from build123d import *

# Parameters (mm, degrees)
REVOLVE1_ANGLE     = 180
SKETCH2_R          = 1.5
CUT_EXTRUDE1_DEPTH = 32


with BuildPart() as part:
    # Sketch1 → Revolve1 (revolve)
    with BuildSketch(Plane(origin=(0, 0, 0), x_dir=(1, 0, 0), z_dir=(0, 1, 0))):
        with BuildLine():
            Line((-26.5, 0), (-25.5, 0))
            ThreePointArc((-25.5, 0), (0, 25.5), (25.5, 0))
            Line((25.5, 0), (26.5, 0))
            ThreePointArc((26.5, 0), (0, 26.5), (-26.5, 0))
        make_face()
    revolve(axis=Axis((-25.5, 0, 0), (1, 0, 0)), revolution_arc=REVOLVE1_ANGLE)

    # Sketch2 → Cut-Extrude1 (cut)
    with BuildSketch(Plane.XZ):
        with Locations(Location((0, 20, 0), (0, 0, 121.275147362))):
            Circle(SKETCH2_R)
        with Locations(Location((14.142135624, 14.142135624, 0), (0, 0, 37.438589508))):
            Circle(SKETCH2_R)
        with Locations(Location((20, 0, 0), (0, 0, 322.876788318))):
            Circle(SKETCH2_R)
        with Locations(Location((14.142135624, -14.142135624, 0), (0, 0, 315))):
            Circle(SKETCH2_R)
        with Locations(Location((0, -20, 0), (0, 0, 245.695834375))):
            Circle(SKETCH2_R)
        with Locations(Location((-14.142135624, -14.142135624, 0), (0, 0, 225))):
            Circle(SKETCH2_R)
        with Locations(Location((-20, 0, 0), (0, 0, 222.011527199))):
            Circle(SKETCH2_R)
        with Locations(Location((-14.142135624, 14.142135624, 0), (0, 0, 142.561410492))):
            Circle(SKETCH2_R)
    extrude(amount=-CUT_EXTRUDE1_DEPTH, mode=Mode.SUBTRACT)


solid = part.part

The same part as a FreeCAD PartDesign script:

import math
import FreeCAD as App
import Part
import Sketcher
Q = App.Units.Quantity

doc = App.newDocument("Part")
body = doc.addObject("PartDesign::Body", "Body")

sketch1 = body.newObject("Sketcher::SketchObject", "Sketch")
sketch1.AttachmentSupport = (doc.getObject("XZ_Plane"), [""])
sketch1.MapMode = "FlatFace"
sketch1.addGeometry(Part.LineSegment(App.Vector(-26.5, 0, 0), App.Vector(-25.5, 0, 0)), False)
sketch1.addGeometry(Part.ArcOfCircle(Part.Circle(App.Vector(0, 0, 0), App.Vector(0, 0, 1), 25.5), math.radians(180), math.radians(360)), False)
sketch1.addGeometry(Part.LineSegment(App.Vector(25.5, 0, 0), App.Vector(26.5, 0, 0)), False)
sketch1.addGeometry(Part.ArcOfCircle(Part.Circle(App.Vector(0, 0, 0), App.Vector(0, 0, 1), 26.5), math.radians(180), math.radians(360)), False)
sketch1.addConstraint(Sketcher.Constraint("Coincident", 0, 2, 1, 1))
sketch1.addConstraint(Sketcher.Constraint("Coincident", 1, 2, 2, 1))
sketch1.addConstraint(Sketcher.Constraint("Coincident", 2, 2, 3, 2))
sketch1.addConstraint(Sketcher.Constraint("Coincident", 3, 1, 0, 1))
sketch1.addConstraint(Sketcher.Constraint("Horizontal", 0))
sketch1.addConstraint(Sketcher.Constraint("Horizontal", 2))
sketch1.addConstraint(Sketcher.Constraint("Coincident", 1, 3, -1, 1))
sketch1.addConstraint(Sketcher.Constraint("Coincident", 3, 3, -1, 1))
sketch1.addConstraint(Sketcher.Constraint("PointOnObject", 0, 2, -1))
sketch1.addConstraint(Sketcher.Constraint("PointOnObject", 1, 2, -1))
sketch1.addConstraint(Sketcher.Constraint("Radius", 1, Q("25.5 mm")))
sketch1.addConstraint(Sketcher.Constraint("Radius", 3, Q("26.5 mm")))
revolution = body.newObject("PartDesign::Revolution", "Revolution")
revolution.Profile = sketch1
revolution.ReferenceAxis = (sketch1, ["H_Axis"])
revolution.Angle = 180

sketch2 = body.newObject("Sketcher::SketchObject", "Sketch001")
sketch2.AttachmentSupport = (doc.getObject("XZ_Plane"), [""])
sketch2.MapMode = "FlatFace"
sketch2.addGeometry(Part.Circle(App.Vector(0, 20, 0), App.Vector(0, 0, 1), 1.5), False)
sketch2.addGeometry(Part.Circle(App.Vector(14.142136, 14.142136, 0), App.Vector(0, 0, 1), 1.5), False)
sketch2.addGeometry(Part.Circle(App.Vector(20, 0, 0), App.Vector(0, 0, 1), 1.5), False)
sketch2.addGeometry(Part.Circle(App.Vector(14.142136, -14.142136, 0), App.Vector(0, 0, 1), 1.5), False)
sketch2.addGeometry(Part.Circle(App.Vector(0, -20, 0), App.Vector(0, 0, 1), 1.5), False)
sketch2.addGeometry(Part.Circle(App.Vector(-14.142136, -14.142136, 0), App.Vector(0, 0, 1), 1.5), False)
sketch2.addGeometry(Part.Circle(App.Vector(-20, 0, 0), App.Vector(0, 0, 1), 1.5), False)
sketch2.addGeometry(Part.Circle(App.Vector(-14.142136, 14.142136, 0), App.Vector(0, 0, 1), 1.5), False)
sketch2.addConstraint(Sketcher.Constraint("Equal", 0, 1))
sketch2.addConstraint(Sketcher.Constraint("Equal", 1, 2))
sketch2.addConstraint(Sketcher.Constraint("Equal", 2, 3))
sketch2.addConstraint(Sketcher.Constraint("Equal", 3, 4))
sketch2.addConstraint(Sketcher.Constraint("Equal", 4, 5))
sketch2.addConstraint(Sketcher.Constraint("Equal", 5, 6))
sketch2.addConstraint(Sketcher.Constraint("Equal", 6, 7))
sketch2.addConstraint(Sketcher.Constraint("Symmetric", 0, 3, 4, 3, -1, 1))
sketch2.addConstraint(Sketcher.Constraint("Symmetric", 1, 3, 5, 3, -1, 1))
sketch2.addConstraint(Sketcher.Constraint("Symmetric", 2, 3, 6, 3, -1, 1))
sketch2.addConstraint(Sketcher.Constraint("Symmetric", 3, 3, 7, 3, -1, 1))
sketch2.addConstraint(Sketcher.Constraint("Symmetric", 3, 3, 5, 3, -2))
sketch2.addConstraint(Sketcher.Constraint("PointOnObject", 0, 3, -2))
sketch2.addConstraint(Sketcher.Constraint("PointOnObject", 2, 3, -1))
sketch2.addConstraint(Sketcher.Constraint("Diameter", 0, Q("3 mm")))
sketch2.addConstraint(Sketcher.Constraint("DistanceY", -1, 1, 0, 3, Q("20 mm")))
sketch2.addConstraint(Sketcher.Constraint("DistanceX", -1, 1, 2, 3, Q("20 mm")))
sketch2.addConstraint(Sketcher.Constraint("DistanceY", 3, 3, 1, 3, Q("28.284271 mm")))
sketch2.addConstraint(Sketcher.Constraint("DistanceX", 5, 3, 3, 3, Q("28.284271 mm")))
pocket1 = body.newObject("PartDesign::Pocket", "Pocket")
pocket1.Profile = sketch2
pocket1.Length = 32

doc.recompute()
